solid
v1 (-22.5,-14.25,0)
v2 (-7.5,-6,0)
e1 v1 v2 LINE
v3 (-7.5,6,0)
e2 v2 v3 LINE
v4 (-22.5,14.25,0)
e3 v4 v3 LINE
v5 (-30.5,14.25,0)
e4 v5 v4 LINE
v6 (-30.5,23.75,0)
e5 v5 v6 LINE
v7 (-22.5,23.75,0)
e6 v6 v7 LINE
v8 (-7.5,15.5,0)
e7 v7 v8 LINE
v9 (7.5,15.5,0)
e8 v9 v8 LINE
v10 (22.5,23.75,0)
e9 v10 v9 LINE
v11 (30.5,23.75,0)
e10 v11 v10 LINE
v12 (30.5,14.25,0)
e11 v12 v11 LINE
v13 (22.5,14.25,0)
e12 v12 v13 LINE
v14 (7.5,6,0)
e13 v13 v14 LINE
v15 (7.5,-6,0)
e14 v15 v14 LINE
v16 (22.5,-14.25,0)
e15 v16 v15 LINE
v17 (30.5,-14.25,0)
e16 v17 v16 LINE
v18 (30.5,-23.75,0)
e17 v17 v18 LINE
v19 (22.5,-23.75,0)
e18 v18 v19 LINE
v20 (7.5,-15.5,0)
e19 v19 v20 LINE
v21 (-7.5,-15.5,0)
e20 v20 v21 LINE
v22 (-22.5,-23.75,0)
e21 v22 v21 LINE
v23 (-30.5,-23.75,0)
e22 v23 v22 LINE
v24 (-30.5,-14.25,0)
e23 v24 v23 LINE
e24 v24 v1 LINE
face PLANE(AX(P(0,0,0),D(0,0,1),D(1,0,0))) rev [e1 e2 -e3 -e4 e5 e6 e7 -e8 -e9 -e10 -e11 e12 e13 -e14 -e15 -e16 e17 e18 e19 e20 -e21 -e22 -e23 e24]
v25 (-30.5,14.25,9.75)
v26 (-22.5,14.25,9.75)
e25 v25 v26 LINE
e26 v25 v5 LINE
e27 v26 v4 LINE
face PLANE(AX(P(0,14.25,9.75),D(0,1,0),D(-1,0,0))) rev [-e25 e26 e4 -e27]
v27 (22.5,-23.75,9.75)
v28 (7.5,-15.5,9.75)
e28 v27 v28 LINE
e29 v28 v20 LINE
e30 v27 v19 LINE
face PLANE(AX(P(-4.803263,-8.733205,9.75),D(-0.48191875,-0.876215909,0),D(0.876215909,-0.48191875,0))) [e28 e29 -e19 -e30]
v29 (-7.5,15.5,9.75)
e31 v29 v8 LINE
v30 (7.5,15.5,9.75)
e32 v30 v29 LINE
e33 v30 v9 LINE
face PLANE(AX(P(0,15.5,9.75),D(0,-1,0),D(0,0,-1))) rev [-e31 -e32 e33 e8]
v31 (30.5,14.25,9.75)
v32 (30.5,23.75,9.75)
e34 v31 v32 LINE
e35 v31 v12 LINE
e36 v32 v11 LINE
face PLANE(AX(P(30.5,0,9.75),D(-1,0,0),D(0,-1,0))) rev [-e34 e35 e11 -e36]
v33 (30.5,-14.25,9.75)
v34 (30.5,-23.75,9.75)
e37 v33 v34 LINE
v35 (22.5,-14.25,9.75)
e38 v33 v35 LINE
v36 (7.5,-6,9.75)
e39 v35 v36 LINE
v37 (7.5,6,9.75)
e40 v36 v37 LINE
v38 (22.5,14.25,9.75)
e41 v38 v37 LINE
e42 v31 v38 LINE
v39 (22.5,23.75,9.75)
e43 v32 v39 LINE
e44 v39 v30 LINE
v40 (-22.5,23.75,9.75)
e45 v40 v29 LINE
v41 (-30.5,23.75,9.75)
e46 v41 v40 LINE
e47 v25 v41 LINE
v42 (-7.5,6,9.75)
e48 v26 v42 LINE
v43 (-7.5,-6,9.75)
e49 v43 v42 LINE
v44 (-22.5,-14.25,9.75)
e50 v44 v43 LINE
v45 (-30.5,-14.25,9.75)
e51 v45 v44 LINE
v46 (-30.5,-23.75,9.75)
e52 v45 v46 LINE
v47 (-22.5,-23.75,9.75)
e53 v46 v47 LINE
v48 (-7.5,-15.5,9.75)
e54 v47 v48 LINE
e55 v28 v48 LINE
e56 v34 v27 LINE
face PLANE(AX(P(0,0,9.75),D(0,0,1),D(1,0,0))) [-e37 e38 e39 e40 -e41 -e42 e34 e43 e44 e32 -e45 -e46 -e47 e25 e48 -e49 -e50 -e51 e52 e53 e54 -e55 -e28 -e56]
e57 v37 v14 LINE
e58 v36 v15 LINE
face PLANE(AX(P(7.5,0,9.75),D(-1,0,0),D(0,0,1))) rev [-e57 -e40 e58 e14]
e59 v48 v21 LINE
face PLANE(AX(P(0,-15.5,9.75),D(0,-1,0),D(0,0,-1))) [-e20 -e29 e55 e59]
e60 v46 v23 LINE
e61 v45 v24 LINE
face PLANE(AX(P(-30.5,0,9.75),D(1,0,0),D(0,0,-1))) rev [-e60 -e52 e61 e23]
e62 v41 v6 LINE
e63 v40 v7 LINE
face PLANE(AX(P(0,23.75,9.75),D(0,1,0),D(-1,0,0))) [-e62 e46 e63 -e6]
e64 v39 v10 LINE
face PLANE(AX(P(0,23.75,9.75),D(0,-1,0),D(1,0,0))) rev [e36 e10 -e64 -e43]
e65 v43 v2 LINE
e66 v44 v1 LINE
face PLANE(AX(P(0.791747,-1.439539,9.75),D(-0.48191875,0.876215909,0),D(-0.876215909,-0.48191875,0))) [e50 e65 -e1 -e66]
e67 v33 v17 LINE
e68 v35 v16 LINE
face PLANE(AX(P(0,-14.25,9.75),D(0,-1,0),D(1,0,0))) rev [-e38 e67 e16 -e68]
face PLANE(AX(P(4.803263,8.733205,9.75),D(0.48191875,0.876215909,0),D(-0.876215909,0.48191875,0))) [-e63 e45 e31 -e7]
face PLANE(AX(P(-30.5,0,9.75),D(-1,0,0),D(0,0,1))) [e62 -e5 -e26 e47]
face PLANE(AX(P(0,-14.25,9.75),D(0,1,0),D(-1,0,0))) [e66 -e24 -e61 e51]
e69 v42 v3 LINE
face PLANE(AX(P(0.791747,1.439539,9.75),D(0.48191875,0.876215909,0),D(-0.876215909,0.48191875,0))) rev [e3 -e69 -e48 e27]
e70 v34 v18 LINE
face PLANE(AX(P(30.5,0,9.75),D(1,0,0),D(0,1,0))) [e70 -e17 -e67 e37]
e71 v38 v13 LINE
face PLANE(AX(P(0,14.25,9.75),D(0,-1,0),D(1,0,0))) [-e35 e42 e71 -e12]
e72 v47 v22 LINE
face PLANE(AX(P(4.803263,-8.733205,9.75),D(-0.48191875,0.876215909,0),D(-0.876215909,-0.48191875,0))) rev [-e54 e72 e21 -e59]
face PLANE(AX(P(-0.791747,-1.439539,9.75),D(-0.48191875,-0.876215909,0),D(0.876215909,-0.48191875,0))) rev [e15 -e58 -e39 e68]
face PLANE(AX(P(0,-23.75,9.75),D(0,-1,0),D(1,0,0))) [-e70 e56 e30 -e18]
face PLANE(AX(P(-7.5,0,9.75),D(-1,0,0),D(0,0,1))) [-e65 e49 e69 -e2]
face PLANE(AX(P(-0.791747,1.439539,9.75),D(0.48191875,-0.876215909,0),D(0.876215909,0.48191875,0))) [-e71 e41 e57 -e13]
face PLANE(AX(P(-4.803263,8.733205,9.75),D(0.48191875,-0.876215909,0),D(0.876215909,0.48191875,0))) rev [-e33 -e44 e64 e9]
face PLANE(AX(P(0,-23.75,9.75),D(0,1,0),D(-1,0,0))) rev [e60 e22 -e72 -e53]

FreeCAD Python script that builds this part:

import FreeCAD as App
import Part
import Sketcher
from FreeCAD import Vector
Q = App.Units.Quantity


def add_polygon(sketch, points):
    """Adds a closed chain of lines whose ends are joined by coincident constraints."""
    first, n = sketch.GeometryCount, len(points)
    for a, b in zip(points, points[1:] + points[:1]):
        sketch.addGeometry(Part.LineSegment(App.Vector(*a, 0), App.Vector(*b, 0)), False)
    for i in range(n):
        sketch.addConstraint(Sketcher.Constraint("Coincident", first + i, 2, first + (i + 1) % n, 1))

doc = App.newDocument("Part")
body = doc.addObject("PartDesign::Body", "Body")

sketch1 = body.newObject("Sketcher::SketchObject", "Sketch")
sketch1.AttachmentSupport = (doc.getObject("XY_Plane"), [""])
sketch1.MapMode = "FlatFace"
add_polygon(sketch1, [(-30, 24), (-30, 14), (-22, 14), (-8, 6), (-8, -6), (-22, -14), (-30, -14), (-30, -24), (-22, -24), (-8, -16), (8, -16), (22, -24), (30, -24), (30, -14), (22, -14), (8, -6), (8, 6), (22, 14), (30, 14), (30, 24), (22, 24), (8, 16), (-8, 16), (-22, 24)])
sketch1.addConstraint([
    Sketcher.Constraint("Vertical", 0),
    Sketcher.Constraint("Horizontal", 1),
    Sketcher.Constraint("Vertical", 3),
    Sketcher.Constraint("Horizontal", 5),
    Sketcher.Constraint("Vertical", 6),
    Sketcher.Constraint("Horizontal", 7),
    Sketcher.Constraint("Horizontal", 9),
    Sketcher.Constraint("Horizontal", 11),
    Sketcher.Constraint("Vertical", 12),
    Sketcher.Constraint("Horizontal", 13),
    Sketcher.Constraint("Vertical", 15),
    Sketcher.Constraint("Horizontal", 17),
    Sketcher.Constraint("Vertical", 18),
    Sketcher.Constraint("Horizontal", 19),
    Sketcher.Constraint("Horizontal", 21),
    Sketcher.Constraint("Horizontal", 23),
    Sketcher.Constraint("Symmetric", 0, 2, 12, 2, -1, 1),
    Sketcher.Constraint("Symmetric", 2, 2, 14, 2, -1, 1),
    Sketcher.Constraint("Symmetric", 4, 2, 16, 2, -1, 1),
    Sketcher.Constraint("Symmetric", 6, 2, 18, 2, -1, 1),
    Sketcher.Constraint("Symmetric", 8, 2, 20, 2, -1, 1),
    Sketcher.Constraint("Symmetric", 10, 2, 22, 2, -1, 1),
    Sketcher.Constraint("Symmetric", 7, 2, 10, 2, -2),
    Sketcher.Constraint("Symmetric", 5, 2, 12, 2, -2),
    Sketcher.Constraint("Parallel", 4, 8),
    Sketcher.Constraint("Parallel", 2, 10),
    Sketcher.Constraint("Parallel", 10, 14),
    Sketcher.Constraint("Parallel", 8, 16),
    Sketcher.Constraint("Parallel", 16, 20),
    Sketcher.Constraint("Parallel", 14, 22),
    Sketcher.Constraint("Horizontal", 3, 2, 14, 2),
    Sketcher.Constraint("Vertical", 1, 2, 4, 2),
    Sketcher.Constraint("Vertical", 4, 2, 7, 2),
    Sketcher.Constraint("Vertical", 3, 2, 8, 2),
    Sketcher.Constraint("DistanceX", 1, 1, 1, 2, Q("8 mm")),
    Sketcher.Constraint("DistanceX", 9, 1, 9, 2, Q("15 mm")),
    Sketcher.Constraint("DistanceY", 3, 2, 3, 1, Q("12 mm")),
    Sketcher.Constraint("DistanceY", 0, 2, 0, 1, Q("9.5 mm")),
    Sketcher.Constraint("DistanceX", 1, 2, 2, 2, Q("15 mm")),
    Sketcher.Constraint("DistanceY", 6, 2, 0, 2, Q("38 mm")),
])
pad1 = body.newObject("PartDesign::Pad", "Pad")
pad1.Profile = sketch1
pad1.Length = 9.75

doc.recompute()
